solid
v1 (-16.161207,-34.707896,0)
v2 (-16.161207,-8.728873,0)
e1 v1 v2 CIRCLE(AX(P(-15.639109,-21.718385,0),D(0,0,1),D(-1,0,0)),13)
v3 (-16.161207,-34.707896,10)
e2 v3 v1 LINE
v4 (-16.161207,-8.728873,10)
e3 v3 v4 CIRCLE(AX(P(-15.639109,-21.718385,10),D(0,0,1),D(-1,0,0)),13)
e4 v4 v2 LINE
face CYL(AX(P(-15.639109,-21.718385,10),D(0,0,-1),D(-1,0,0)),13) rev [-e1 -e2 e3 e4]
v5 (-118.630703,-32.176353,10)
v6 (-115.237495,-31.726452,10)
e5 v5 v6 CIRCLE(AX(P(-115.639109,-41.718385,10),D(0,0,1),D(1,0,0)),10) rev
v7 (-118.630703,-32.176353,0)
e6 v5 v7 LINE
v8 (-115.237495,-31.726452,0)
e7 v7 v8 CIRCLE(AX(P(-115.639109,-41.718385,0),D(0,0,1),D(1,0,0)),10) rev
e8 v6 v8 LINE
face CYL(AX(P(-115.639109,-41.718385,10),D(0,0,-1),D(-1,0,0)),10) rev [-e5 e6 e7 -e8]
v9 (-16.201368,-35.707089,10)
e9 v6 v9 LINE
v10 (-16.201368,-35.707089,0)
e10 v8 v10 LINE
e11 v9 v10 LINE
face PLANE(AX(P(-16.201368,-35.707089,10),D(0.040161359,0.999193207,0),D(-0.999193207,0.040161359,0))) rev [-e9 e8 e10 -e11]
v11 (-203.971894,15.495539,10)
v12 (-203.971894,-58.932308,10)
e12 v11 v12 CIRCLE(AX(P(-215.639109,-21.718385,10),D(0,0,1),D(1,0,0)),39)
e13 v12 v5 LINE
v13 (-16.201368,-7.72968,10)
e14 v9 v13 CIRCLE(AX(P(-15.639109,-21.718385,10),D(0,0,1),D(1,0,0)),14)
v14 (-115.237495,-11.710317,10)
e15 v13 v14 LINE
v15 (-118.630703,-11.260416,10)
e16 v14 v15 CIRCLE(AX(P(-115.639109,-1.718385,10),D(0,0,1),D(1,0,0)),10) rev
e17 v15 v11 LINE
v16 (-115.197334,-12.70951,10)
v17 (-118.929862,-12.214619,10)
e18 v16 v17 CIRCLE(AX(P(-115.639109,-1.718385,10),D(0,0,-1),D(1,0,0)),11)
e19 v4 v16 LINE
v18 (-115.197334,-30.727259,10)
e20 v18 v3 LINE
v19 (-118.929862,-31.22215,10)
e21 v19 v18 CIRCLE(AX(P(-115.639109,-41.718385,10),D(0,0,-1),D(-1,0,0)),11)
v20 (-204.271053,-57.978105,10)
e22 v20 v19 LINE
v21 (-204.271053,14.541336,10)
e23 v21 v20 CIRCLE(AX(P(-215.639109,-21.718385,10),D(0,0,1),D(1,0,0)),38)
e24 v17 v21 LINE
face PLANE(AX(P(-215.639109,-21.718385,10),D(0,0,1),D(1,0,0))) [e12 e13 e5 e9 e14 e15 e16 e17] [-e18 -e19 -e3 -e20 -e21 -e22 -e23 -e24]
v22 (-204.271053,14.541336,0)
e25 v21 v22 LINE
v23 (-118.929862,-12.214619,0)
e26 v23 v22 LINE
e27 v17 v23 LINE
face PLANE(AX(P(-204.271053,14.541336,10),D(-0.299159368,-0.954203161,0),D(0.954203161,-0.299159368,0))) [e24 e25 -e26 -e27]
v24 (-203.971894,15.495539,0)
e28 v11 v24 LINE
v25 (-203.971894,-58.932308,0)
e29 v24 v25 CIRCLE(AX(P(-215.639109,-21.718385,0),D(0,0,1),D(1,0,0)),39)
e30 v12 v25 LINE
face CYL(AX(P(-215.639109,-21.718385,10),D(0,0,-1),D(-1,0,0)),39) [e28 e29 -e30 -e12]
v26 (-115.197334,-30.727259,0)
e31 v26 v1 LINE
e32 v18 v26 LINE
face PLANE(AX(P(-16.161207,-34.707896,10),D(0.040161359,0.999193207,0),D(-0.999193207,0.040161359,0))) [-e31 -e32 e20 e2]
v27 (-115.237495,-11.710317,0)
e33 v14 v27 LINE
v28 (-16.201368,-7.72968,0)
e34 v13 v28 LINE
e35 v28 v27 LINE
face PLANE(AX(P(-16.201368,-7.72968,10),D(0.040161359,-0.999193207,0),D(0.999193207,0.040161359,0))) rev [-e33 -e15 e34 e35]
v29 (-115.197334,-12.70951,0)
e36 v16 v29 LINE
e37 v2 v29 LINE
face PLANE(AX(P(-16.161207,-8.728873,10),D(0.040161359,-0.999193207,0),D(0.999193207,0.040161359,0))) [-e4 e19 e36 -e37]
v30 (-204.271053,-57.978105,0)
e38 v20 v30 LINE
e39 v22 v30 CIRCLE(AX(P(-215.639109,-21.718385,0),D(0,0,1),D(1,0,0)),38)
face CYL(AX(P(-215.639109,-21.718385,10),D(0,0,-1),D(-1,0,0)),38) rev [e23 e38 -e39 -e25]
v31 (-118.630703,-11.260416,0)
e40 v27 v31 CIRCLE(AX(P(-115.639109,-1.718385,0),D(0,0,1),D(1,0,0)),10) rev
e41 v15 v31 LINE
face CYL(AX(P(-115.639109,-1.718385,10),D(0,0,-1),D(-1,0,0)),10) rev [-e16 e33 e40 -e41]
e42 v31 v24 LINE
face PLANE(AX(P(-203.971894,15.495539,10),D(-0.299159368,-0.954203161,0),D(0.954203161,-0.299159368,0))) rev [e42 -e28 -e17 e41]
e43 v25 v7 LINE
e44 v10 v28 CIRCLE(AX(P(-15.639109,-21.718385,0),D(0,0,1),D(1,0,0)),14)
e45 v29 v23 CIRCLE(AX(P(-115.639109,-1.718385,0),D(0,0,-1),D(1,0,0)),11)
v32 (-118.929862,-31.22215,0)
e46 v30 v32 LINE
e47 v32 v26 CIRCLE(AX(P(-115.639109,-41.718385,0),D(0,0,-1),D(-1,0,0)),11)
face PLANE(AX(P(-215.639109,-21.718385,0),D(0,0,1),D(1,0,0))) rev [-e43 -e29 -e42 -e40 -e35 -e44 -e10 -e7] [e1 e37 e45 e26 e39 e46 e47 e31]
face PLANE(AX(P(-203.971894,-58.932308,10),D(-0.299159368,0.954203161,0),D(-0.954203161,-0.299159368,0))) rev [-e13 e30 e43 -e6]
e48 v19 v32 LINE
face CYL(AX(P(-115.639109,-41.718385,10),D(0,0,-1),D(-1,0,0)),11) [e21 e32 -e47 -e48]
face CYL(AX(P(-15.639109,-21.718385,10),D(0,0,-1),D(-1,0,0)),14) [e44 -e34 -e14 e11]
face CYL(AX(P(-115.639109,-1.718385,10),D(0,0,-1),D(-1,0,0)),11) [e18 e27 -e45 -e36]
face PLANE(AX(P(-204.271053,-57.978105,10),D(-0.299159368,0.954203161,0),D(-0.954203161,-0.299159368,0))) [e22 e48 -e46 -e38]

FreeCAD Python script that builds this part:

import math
import FreeCAD as App
import Part
import Sketcher
Q = App.Units.Quantity

doc = App.newDocument("Part")
body = doc.addObject("PartDesign::Body", "Body")

# Sketch on XY plane
sketch1 = body.newObject("Sketcher::SketchObject", "Sketch")
sketch1.AttachmentSupport = (doc.getObject("XY_Plane"), [""])
sketch1.MapMode = "FlatFace"
sketch1.addGeometry(Part.LineSegment(App.Vector(-204, -58.9, 0), App.Vector(-118.6, -32.2, 0)), False)
sketch1.addGeometry(Part.ArcOfCircle(Part.Circle(App.Vector(-115.6, -41.7, 0), App.Vector(0, 0, 1), 10), math.radians(87.7), math.radians(107.41)), False)
sketch1.addGeometry(Part.LineSegment(App.Vector(-115.2, -31.7, 0), App.Vector(-16.2, -35.7, 0)), False)
sketch1.addGeometry(Part.ArcOfCircle(Part.Circle(App.Vector(-15.6, -21.7, 0), App.Vector(0, 0, 1), 14), math.radians(-92), math.radians(92)), False)
sketch1.addGeometry(Part.LineSegment(App.Vector(-16.2, -7.7, 0), App.Vector(-115.2, -11.7, 0)), False)
sketch1.addGeometry(Part.ArcOfCircle(Part.Circle(App.Vector(-115.6, -1.7, 0), App.Vector(0, 0, 1), 10), math.radians(-107.41), math.radians(-87.7)), False)
sketch1.addGeometry(Part.LineSegment(App.Vector(-118.6, -11.3, 0), App.Vector(-204, 15.5, 0)), False)
sketch1.addGeometry(Part.ArcOfCircle(Part.Circle(App.Vector(-215.6, -21.7, 0), App.Vector(0, 0, 1), 39), math.radians(73), math.radians(287)), False)
sketch1.addGeometry(Part.LineSegment(App.Vector(-118.9, -31.2, 0), App.Vector(-204.3, -58, 0)), False)
sketch1.addGeometry(Part.ArcOfCircle(Part.Circle(App.Vector(-215.6, -21.7, 0), App.Vector(0, 0, 1), 38), math.radians(73), math.radians(287)), False)
sketch1.addGeometry(Part.LineSegment(App.Vector(-204.3, 14.5, 0), App.Vector(-118.9, -12.2, 0)), False)
sketch1.addGeometry(Part.ArcOfCircle(Part.Circle(App.Vector(-115.6, -1.7, 0), App.Vector(0, 0, 1), 11), math.radians(-107.41), math.radians(-87.7)), False)
sketch1.addGeometry(Part.LineSegment(App.Vector(-115.2, -12.7, 0), App.Vector(-16.2, -8.7, 0)), False)
sketch1.addGeometry(Part.ArcOfCircle(Part.Circle(App.Vector(-15.6, -21.7, 0), App.Vector(0, 0, 1), 13), math.radians(-92), math.radians(92)), False)
sketch1.addGeometry(Part.LineSegment(App.Vector(-16.2, -34.7, 0), App.Vector(-115.2, -30.7, 0)), False)
sketch1.addGeometry(Part.ArcOfCircle(Part.Circle(App.Vector(-115.6, -41.7, 0), App.Vector(0, 0, 1), 11), math.radians(87.7), math.radians(107.41)), False)
sketch1.addConstraint(Sketcher.Constraint("Tangent", 0, 2, 1, 2))
sketch1.addConstraint(Sketcher.Constraint("Tangent", 1, 1, 2, 1))
sketch1.addConstraint(Sketcher.Constraint("Tangent", 2, 2, 3, 1))
sketch1.addConstraint(Sketcher.Constraint("Tangent", 3, 2, 4, 1))
sketch1.addConstraint(Sketcher.Constraint("Tangent", 4, 2, 5, 2))
sketch1.addConstraint(Sketcher.Constraint("Tangent", 5, 1, 6, 1))
sketch1.addConstraint(Sketcher.Constraint("Tangent", 6, 2, 7, 1))
sketch1.addConstraint(Sketcher.Constraint("Tangent", 7, 2, 0, 1))
sketch1.addConstraint(Sketcher.Constraint("Tangent", 8, 2, 9, 2))
sketch1.addConstraint(Sketcher.Constraint("Tangent", 9, 1, 10, 1))
sketch1.addConstraint(Sketcher.Constraint("Tangent", 10, 2, 11, 1))
sketch1.addConstraint(Sketcher.Constraint("Tangent", 11, 2, 12, 1))
sketch1.addConstraint(Sketcher.Constraint("Tangent", 12, 2, 13, 2))
sketch1.addConstraint(Sketcher.Constraint("Tangent", 13, 1, 14, 1))
sketch1.addConstraint(Sketcher.Constraint("Tangent", 14, 2, 15, 1))
sketch1.addConstraint(Sketcher.Constraint("Tangent", 15, 2, 8, 1))
sketch1.addConstraint(Sketcher.Constraint("Coincident", 9, 3, 7, 3))
sketch1.addConstraint(Sketcher.Constraint("Coincident", 11, 3, 5, 3))
sketch1.addConstraint(Sketcher.Constraint("Coincident", 13, 3, 3, 3))
sketch1.addConstraint(Sketcher.Constraint("Coincident", 15, 3, 1, 3))
sketch1.addConstraint(Sketcher.Constraint("Equal", 1, 5))
sketch1.addConstraint(Sketcher.Constraint("Equal", 11, 15))
sketch1.addConstraint(Sketcher.Constraint("Parallel", 0, 8))
sketch1.addConstraint(Sketcher.Constraint("Parallel", 4, 12))
sketch1.addConstraint(Sketcher.Constraint("Horizontal", 3, 3, 7, 3))
sketch1.addConstraint(Sketcher.Constraint("Vertical", 1, 3, 5, 3))
sketch1.addConstraint(Sketcher.Constraint("Vertical", 2, 2, 3, 2))
sketch1.addConstraint(Sketcher.Constraint("Radius", 1, Q("10 mm")))
sketch1.addConstraint(Sketcher.Constraint("Radius", 3, Q("14 mm")))
sketch1.addConstraint(Sketcher.Constraint("Radius", 7, Q("39 mm")))
sketch1.addConstraint(Sketcher.Constraint("Radius", 9, Q("38 mm")))
sketch1.addConstraint(Sketcher.Constraint("DistanceX", 1, 3, 3, 3, Q("100 mm")))
sketch1.addConstraint(Sketcher.Constraint("DistanceY", 1, 3, 3, 3, Q("20 mm")))
sketch1.addConstraint(Sketcher.Constraint("DistanceX", 7, 3, 5, 3, Q("100 mm")))
sketch1.addConstraint(Sketcher.Constraint("DistanceX", 1, 3, -1, 1, Q("115.639109 mm")))
sketch1.addConstraint(Sketcher.Constraint("DistanceY", 2, 2, -1, 1, Q("35.707089 mm")))
pad1 = body.newObject("PartDesign::Pad", "Pad")
pad1.Profile = sketch1
pad1.Length = 10

doc.recompute()
